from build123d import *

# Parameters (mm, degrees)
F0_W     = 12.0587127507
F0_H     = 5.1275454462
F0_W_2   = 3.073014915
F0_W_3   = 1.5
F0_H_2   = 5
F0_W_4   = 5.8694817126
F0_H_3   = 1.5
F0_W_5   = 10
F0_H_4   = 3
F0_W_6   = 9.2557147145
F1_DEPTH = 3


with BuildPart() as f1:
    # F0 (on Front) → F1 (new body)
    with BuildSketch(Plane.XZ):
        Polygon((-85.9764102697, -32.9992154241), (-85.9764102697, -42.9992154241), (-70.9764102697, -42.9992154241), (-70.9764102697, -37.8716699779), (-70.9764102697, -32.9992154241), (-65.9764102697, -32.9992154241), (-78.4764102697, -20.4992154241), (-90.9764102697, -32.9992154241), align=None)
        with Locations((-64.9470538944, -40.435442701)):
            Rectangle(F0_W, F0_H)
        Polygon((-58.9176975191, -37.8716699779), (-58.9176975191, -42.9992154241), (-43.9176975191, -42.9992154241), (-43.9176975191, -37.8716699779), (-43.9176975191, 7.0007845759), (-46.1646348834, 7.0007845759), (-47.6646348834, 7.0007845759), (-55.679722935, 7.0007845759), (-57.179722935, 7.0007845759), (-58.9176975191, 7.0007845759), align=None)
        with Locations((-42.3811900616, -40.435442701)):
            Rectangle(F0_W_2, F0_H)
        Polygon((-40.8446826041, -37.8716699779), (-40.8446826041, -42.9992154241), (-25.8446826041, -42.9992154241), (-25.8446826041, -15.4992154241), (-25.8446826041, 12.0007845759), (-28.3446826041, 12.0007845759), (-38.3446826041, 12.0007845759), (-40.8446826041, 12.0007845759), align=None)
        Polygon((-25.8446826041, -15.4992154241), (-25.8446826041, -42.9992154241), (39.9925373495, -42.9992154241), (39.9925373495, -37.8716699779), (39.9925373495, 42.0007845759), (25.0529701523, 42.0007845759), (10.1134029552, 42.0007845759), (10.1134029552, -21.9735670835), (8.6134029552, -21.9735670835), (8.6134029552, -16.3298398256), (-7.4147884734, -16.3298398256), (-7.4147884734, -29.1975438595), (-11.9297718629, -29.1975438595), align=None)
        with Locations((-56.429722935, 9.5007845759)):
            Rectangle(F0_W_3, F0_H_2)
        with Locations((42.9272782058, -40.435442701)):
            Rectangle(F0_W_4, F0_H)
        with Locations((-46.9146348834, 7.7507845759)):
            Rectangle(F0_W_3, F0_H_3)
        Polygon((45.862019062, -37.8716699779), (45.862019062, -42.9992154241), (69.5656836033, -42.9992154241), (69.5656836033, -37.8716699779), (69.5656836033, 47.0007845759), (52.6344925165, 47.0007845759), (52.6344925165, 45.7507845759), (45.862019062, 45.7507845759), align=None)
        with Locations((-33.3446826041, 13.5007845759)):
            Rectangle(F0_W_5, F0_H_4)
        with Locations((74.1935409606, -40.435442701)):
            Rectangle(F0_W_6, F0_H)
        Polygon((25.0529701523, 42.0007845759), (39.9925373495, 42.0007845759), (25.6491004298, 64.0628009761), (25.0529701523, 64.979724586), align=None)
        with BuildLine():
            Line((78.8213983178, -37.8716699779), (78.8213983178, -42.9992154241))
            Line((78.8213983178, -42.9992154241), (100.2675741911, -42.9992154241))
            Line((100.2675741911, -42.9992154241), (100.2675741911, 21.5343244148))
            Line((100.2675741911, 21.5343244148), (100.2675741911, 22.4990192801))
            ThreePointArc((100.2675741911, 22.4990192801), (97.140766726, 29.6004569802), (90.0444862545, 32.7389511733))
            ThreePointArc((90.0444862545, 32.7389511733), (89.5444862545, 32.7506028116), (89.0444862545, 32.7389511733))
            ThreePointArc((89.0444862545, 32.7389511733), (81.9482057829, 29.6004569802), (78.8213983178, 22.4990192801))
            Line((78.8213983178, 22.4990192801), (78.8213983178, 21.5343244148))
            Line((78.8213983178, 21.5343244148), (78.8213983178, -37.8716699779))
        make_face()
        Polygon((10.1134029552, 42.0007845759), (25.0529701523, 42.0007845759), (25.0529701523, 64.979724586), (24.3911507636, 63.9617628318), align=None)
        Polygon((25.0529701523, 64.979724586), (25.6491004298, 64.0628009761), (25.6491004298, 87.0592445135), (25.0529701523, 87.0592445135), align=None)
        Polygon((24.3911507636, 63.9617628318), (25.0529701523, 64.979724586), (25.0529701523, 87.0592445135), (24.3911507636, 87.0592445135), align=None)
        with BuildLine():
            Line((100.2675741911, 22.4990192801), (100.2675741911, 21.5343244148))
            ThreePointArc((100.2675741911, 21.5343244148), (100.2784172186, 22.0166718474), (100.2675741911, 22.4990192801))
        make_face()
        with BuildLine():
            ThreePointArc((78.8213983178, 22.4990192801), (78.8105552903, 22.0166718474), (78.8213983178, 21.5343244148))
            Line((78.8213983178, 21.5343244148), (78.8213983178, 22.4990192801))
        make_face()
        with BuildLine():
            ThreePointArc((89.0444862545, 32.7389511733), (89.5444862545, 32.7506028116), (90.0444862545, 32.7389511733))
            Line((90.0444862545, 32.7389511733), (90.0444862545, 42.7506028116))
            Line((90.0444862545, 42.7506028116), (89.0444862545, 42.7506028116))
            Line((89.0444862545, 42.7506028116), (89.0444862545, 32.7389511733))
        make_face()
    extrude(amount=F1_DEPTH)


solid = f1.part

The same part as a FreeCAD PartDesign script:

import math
import FreeCAD as App
import Part
import Sketcher

V = App.Vector
Q = App.Units.Quantity

doc = App.newDocument("Part")
params = doc.addObject("Spreadsheet::Sheet", "Params")
for row, (alias, value) in enumerate([
    ("sketch1_width", "1 mm"),
    ("sketch1_width2", "10 mm"),
    ("sketch1_width3", "5 mm"),
    ("sketch1_height", "3 mm"),
    ("sketch1_width4", "1.5 mm"),
    ("pad1_length", "3 mm"),
], start=1):
    params.set(f"A{row}", alias)
    params.set(f"B{row}", "=" + value)
    params.setAlias(f"B{row}", alias)

body = doc.addObject("PartDesign::Body", "Body")

# Sketch on XZ plane
sketch1 = body.newObject("Sketcher::SketchObject", "Sketch")
sketch1.AttachmentSupport = (doc.getObject("XZ_Plane"), [""])
sketch1.MapMode = "FlatFace"
sketch1.addGeometry(Part.LineSegment(V(-85.97641, -32.999215, 0), V(-85.97641, -42.999215, 0)), False)
sketch1.addGeometry(Part.LineSegment(V(-85.97641, -42.999215, 0), V(100.267574, -42.999215, 0)), False)
sketch1.addGeometry(Part.LineSegment(V(100.267574, -42.999215, 0), V(100.267574, 21.534324, 0)), False)
sketch1.addGeometry(Part.ArcOfCircle(Part.Circle(V(89.544486, 22.016672, 0), V(0, 0, 1), 10.733931), math.radians(-2.575551), math.radians(2.575551)), False)
sketch1.addGeometry(Part.ArcOfCircle(Part.Circle(V(89.544486, 22.016672, 0), V(0, 0, 1), 10.733931), math.radians(2.575551), math.radians(87.330124)), False)
sketch1.addGeometry(Part.LineSegment(V(90.044486, 32.738951, 0), V(90.044486, 42.750603, 0)), False)
sketch1.addGeometry(Part.LineSegment(V(90.044486, 42.750603, 0), V(89.044486, 42.750603, 0)), False)
sketch1.addGeometry(Part.LineSegment(V(89.044486, 42.750603, 0), V(89.044486, 32.738951, 0)), False)
sketch1.addGeometry(Part.ArcOfCircle(Part.Circle(V(89.544486, 22.016672, 0), V(0, 0, 1), 10.733931), math.radians(92.669876), math.radians(177.424449)), False)
sketch1.addGeometry(Part.ArcOfCircle(Part.Circle(V(89.544486, 22.016672, 0), V(0, 0, 1), 10.733931), math.radians(177.424449), math.radians(182.575551)), False)
sketch1.addGeometry(Part.LineSegment(V(78.821398, 21.534324, 0), V(78.821398, -37.87167, 0)), False)
sketch1.addGeometry(Part.LineSegment(V(78.821398, -37.87167, 0), V(69.565684, -37.87167, 0)), False)
sketch1.addGeometry(Part.LineSegment(V(69.565684, -37.87167, 0), V(69.565684, 47.000785, 0)), False)
sketch1.addGeometry(Part.LineSegment(V(69.565684, 47.000785, 0), V(52.634493, 47.000785, 0)), False)
sketch1.addGeometry(Part.LineSegment(V(52.634493, 47.000785, 0), V(52.634493, 45.750785, 0)), False)
sketch1.addGeometry(Part.LineSegment(V(52.634493, 45.750785, 0), V(45.862019, 45.750785, 0)), False)
sketch1.addGeometry(Part.LineSegment(V(45.862019, 45.750785, 0), V(45.862019, -37.87167, 0)), False)
sketch1.addGeometry(Part.LineSegment(V(45.862019, -37.87167, 0), V(39.992537, -37.87167, 0)), False)
sketch1.addGeometry(Part.LineSegment(V(39.992537, -37.87167, 0), V(39.992537, 42.000785, 0)), False)
sketch1.addGeometry(Part.LineSegment(V(39.992537, 42.000785, 0), V(25.6491, 64.062801, 0)), False)
sketch1.addGeometry(Part.LineSegment(V(25.6491, 64.062801, 0), V(25.6491, 87.059245, 0)), False)
sketch1.addGeometry(Part.LineSegment(V(25.6491, 87.059245, 0), V(24.391151, 87.059245, 0)), False)
sketch1.addGeometry(Part.LineSegment(V(24.391151, 87.059245, 0), V(24.391151, 63.961763, 0)), False)
sketch1.addGeometry(Part.LineSegment(V(24.391151, 63.961763, 0), V(10.113403, 42.000785, 0)), False)
sketch1.addGeometry(Part.LineSegment(V(10.113403, 42.000785, 0), V(10.113403, -21.973567, 0)), False)
sketch1.addGeometry(Part.LineSegment(V(10.113403, -21.973567, 0), V(8.613403, -21.973567, 0)), False)
sketch1.addGeometry(Part.LineSegment(V(8.613403, -21.973567, 0), V(8.613403, -16.32984, 0)), False)
sketch1.addGeometry(Part.LineSegment(V(8.613403, -16.32984, 0), V(-7.414788, -16.32984, 0)), False)
sketch1.addGeometry(Part.LineSegment(V(-7.414788, -16.32984, 0), V(-7.414788, -29.197544, 0)), False)
sketch1.addGeometry(Part.LineSegment(V(-7.414788, -29.197544, 0), V(-11.929772, -29.197544, 0)), False)
sketch1.addGeometry(Part.LineSegment(V(-11.929772, -29.197544, 0), V(-25.844683, -15.499215, 0)), False)
sketch1.addGeometry(Part.LineSegment(V(-25.844683, -15.499215, 0), V(-25.844683, 12.000785, 0)), False)
sketch1.addGeometry(Part.LineSegment(V(-25.844683, 12.000785, 0), V(-28.344683, 12.000785, 0)), False)
sketch1.addGeometry(Part.LineSegment(V(-28.344683, 12.000785, 0), V(-28.344683, 15.000785, 0)), False)
sketch1.addGeometry(Part.LineSegment(V(-28.344683, 15.000785, 0), V(-38.344683, 15.000785, 0)), False)
sketch1.addGeometry(Part.LineSegment(V(-38.344683, 15.000785, 0), V(-38.344683, 12.000785, 0)), False)
sketch1.addGeometry(Part.LineSegment(V(-38.344683, 12.000785, 0), V(-40.844683, 12.000785, 0)), False)
sketch1.addGeometry(Part.LineSegment(V(-40.844683, 12.000785, 0), V(-40.844683, -37.87167, 0)), False)
sketch1.addGeometry(Part.LineSegment(V(-40.844683, -37.87167, 0), V(-43.917698, -37.87167, 0)), False)
sketch1.addGeometry(Part.LineSegment(V(-43.917698, -37.87167, 0), V(-43.917698, 7.000785, 0)), False)
sketch1.addGeometry(Part.LineSegment(V(-43.917698, 7.000785, 0), V(-46.164635, 7.000785, 0)), False)
sketch1.addGeometry(Part.LineSegment(V(-46.164635, 7.000785, 0), V(-46.164635, 8.500785, 0)), False)
sketch1.addGeometry(Part.LineSegment(V(-46.164635, 8.500785, 0), V(-47.664635, 8.500785, 0)), False)
sketch1.addGeometry(Part.LineSegment(V(-47.664635, 8.500785, 0), V(-47.664635, 7.000785, 0)), False)
sketch1.addGeometry(Part.LineSegment(V(-47.664635, 7.000785, 0), V(-55.679723, 7.000785, 0)), False)
sketch1.addGeometry(Part.LineSegment(V(-55.679723, 7.000785, 0), V(-55.679723, 12.000785, 0)), False)
sketch1.addGeometry(Part.LineSegment(V(-55.679723, 12.000785, 0), V(-57.179723, 12.000785, 0)), False)
sketch1.addGeometry(Part.LineSegment(V(-57.179723, 12.000785, 0), V(-57.179723, 7.000785, 0)), False)
sketch1.addGeometry(Part.LineSegment(V(-57.179723, 7.000785, 0), V(-58.917698, 7.000785, 0)), False)
sketch1.addGeometry(Part.LineSegment(V(-58.917698, 7.000785, 0), V(-58.917698, -37.87167, 0)), False)
sketch1.addGeometry(Part.LineSegment(V(-58.917698, -37.87167, 0), V(-70.97641, -37.87167, 0)), False)
sketch1.addGeometry(Part.LineSegment(V(-70.97641, -37.87167, 0), V(-70.97641, -32.999215, 0)), False)
sketch1.addGeometry(Part.LineSegment(V(-70.97641, -32.999215, 0), V(-65.97641, -32.999215, 0)), False)
sketch1.addGeometry(Part.LineSegment(V(-65.97641, -32.999215, 0), V(-78.47641, -20.499215, 0)), False)
sketch1.addGeometry(Part.LineSegment(V(-78.47641, -20.499215, 0), V(-90.97641, -32.999215, 0)), False)
sketch1.addGeometry(Part.LineSegment(V(-90.97641, -32.999215, 0), V(-85.97641, -32.999215, 0)), False)
sketch1.addConstraint(Sketcher.Constraint("Coincident", 0, 2, 1, 1))
sketch1.addConstraint(Sketcher.Constraint("Coincident", 1, 2, 2, 1))
sketch1.addConstraint(Sketcher.Constraint("Coincident", 2, 2, 3, 1))
sketch1.addConstraint(Sketcher.Constraint("Tangent", 3, 2, 4, 1))
sketch1.addConstraint(Sketcher.Constraint("Coincident", 4, 2, 5, 1))
sketch1.addConstraint(Sketcher.Constraint("Coincident", 5, 2, 6, 1))
sketch1.addConstraint(Sketcher.Constraint("Coincident", 6, 2, 7, 1))
sketch1.addConstraint(Sketcher.Constraint("Coincident", 7, 2, 8, 1))
sketch1.addConstraint(Sketcher.Constraint("Tangent", 8, 2, 9, 1))
sketch1.addConstraint(Sketcher.Constraint("Coincident", 9, 2, 10, 1))
sketch1.addConstraint(Sketcher.Constraint("Coincident", 10, 2, 11, 1))
sketch1.addConstraint(Sketcher.Constraint("Coincident", 11, 2, 12, 1))
sketch1.addConstraint(Sketcher.Constraint("Coincident", 12, 2, 13, 1))
sketch1.addConstraint(Sketcher.Constraint("Coincident", 13, 2, 14, 1))
sketch1.addConstraint(Sketcher.Constraint("Coincident", 14, 2, 15, 1))
sketch1.addConstraint(Sketcher.Constraint("Coincident", 15, 2, 16, 1))
sketch1.addConstraint(Sketcher.Constraint("Coincident", 16, 2, 17, 1))
sketch1.addConstraint(Sketcher.Constraint("Coincident", 17, 2, 18, 1))
sketch1.addConstraint(Sketcher.Constraint("Coincident", 18, 2, 19, 1))
sketch1.addConstraint(Sketcher.Constraint("Coincident", 19, 2, 20, 1))
sketch1.addConstraint(Sketcher.Constraint("Coincident", 20, 2, 21, 1))
sketch1.addConstraint(Sketcher.Constraint("Coincident", 21, 2, 22, 1))
sketch1.addConstraint(Sketcher.Constraint("Coincident", 22, 2, 23, 1))
sketch1.addConstraint(Sketcher.Constraint("Coincident", 23, 2, 24, 1))
sketch1.addConstraint(Sketcher.Constraint("Coincident", 24, 2, 25, 1))
sketch1.addConstraint(Sketcher.Constraint("Coincident", 25, 2, 26, 1))
sketch1.addConstraint(Sketcher.Constraint("Coincident", 26, 2, 27, 1))
sketch1.addConstraint(Sketcher.Constraint("Coincident", 27, 2, 28, 1))
sketch1.addConstraint(Sketcher.Constraint("Coincident", 28, 2, 29, 1))
sketch1.addConstraint(Sketcher.Constraint("Coincident", 29, 2, 30, 1))
sketch1.addConstraint(Sketcher.Constraint("Coincident", 30, 2, 31, 1))
sketch1.addConstraint(Sketcher.Constraint("Coincident", 31, 2, 32, 1))
sketch1.addConstraint(Sketcher.Constraint("Coincident", 32, 2, 33, 1))
sketch1.addConstraint(Sketcher.Constraint("Coincident", 33, 2, 34, 1))
sketch1.addConstraint(Sketcher.Constraint("Coincident", 34, 2, 35, 1))
sketch1.addConstraint(Sketcher.Constraint("Coincident", 35, 2, 36, 1))
sketch1.addConstraint(Sketcher.Constraint("Coincident", 36, 2, 37, 1))
sketch1.addConstraint(Sketcher.Constraint("Coincident", 37, 2, 38, 1))
sketch1.addConstraint(Sketcher.Constraint("Coincident", 38, 2, 39, 1))
sketch1.addConstraint(Sketcher.Constraint("Coincident", 39, 2, 40, 1))
sketch1.addConstraint(Sketcher.Constraint("Coincident", 40, 2, 41, 1))
sketch1.addConstraint(Sketcher.Constraint("Coincident", 41, 2, 42, 1))
sketch1.addConstraint(Sketcher.Constraint("Coincident", 42, 2, 43, 1))
sketch1.addConstraint(Sketcher.Constraint("Coincident", 43, 2, 44, 1))
sketch1.addConstraint(Sketcher.Constraint("Coincident", 44, 2, 45, 1))
sketch1.addConstraint(Sketcher.Constraint("Coincident", 45, 2, 46, 1))
sketch1.addConstraint(Sketcher.Constraint("Coincident", 46, 2, 47, 1))
sketch1.addConstraint(Sketcher.Constraint("Coincident", 47, 2, 48, 1))
sketch1.addConstraint(Sketcher.Constraint("Coincident", 48, 2, 49, 1))
sketch1.addConstraint(Sketcher.Constraint("Coincident", 49, 2, 50, 1))
sketch1.addConstraint(Sketcher.Constraint("Coincident", 50, 2, 51, 1))
sketch1.addConstraint(Sketcher.Constraint("Coincident", 51, 2, 52, 1))
sketch1.addConstraint(Sketcher.Constraint("Coincident", 52, 2, 53, 1))
sketch1.addConstraint(Sketcher.Constraint("Coincident", 53, 2, 54, 1))
sketch1.addConstraint(Sketcher.Constraint("Coincident", 54, 2, 55, 1))
sketch1.addConstraint(Sketcher.Constraint("Coincident", 55, 2, 0, 1))
sketch1.addConstraint(Sketcher.Constraint("Vertical", 0))
sketch1.addConstraint(Sketcher.Constraint("Horizontal", 1))
sketch1.addConstraint(Sketcher.Constraint("Vertical", 2))
sketch1.addConstraint(Sketcher.Constraint("Vertical", 5))
sketch1.addConstraint(Sketcher.Constraint("Horizontal", 6))
sketch1.addConstraint(Sketcher.Constraint("Vertical", 7))
sketch1.addConstraint(Sketcher.Constraint("Vertical", 10))
sketch1.addConstraint(Sketcher.Constraint("Horizontal", 11))
sketch1.addConstraint(Sketcher.Constraint("Vertical", 12))
sketch1.addConstraint(Sketcher.Constraint("Horizontal", 13))
sketch1.addConstraint(Sketcher.Constraint("Vertical", 14))
sketch1.addConstraint(Sketcher.Constraint("Horizontal", 15))
sketch1.addConstraint(Sketcher.Constraint("Vertical", 16))
sketch1.addConstraint(Sketcher.Constraint("Horizontal", 17))
sketch1.addConstraint(Sketcher.Constraint("Vertical", 18))
sketch1.addConstraint(Sketcher.Constraint("Vertical", 20))
sketch1.addConstraint(Sketcher.Constraint("Horizontal", 21))
sketch1.addConstraint(Sketcher.Constraint("Vertical", 22))
sketch1.addConstraint(Sketcher.Constraint("Vertical", 24))
sketch1.addConstraint(Sketcher.Constraint("Horizontal", 25))
sketch1.addConstraint(Sketcher.Constraint("Vertical", 26))
sketch1.addConstraint(Sketcher.Constraint("Horizontal", 27))
sketch1.addConstraint(Sketcher.Constraint("Vertical", 28))
sketch1.addConstraint(Sketcher.Constraint("Horizontal", 29))
sketch1.addConstraint(Sketcher.Constraint("Vertical", 31))
sketch1.addConstraint(Sketcher.Constraint("Horizontal", 32))
sketch1.addConstraint(Sketcher.Constraint("Vertical", 33))
sketch1.addConstraint(Sketcher.Constraint("Horizontal", 34))
sketch1.addConstraint(Sketcher.Constraint("Vertical", 35))
sketch1.addConstraint(Sketcher.Constraint("Horizontal", 36))
sketch1.addConstraint(Sketcher.Constraint("Vertical", 37))
sketch1.addConstraint(Sketcher.Constraint("Horizontal", 38))
sketch1.addConstraint(Sketcher.Constraint("Vertical", 39))
sketch1.addConstraint(Sketcher.Constraint("Horizontal", 40))
sketch1.addConstraint(Sketcher.Constraint("Vertical", 41))
sketch1.addConstraint(Sketcher.Constraint("Horizontal", 42))
sketch1.addConstraint(Sketcher.Constraint("Vertical", 43))
sketch1.addConstraint(Sketcher.Constraint("Horizontal", 44))
sketch1.addConstraint(Sketcher.Constraint("Vertical", 45))
sketch1.addConstraint(Sketcher.Constraint("Horizontal", 46))
sketch1.addConstraint(Sketcher.Constraint("Vertical", 47))
sketch1.addConstraint(Sketcher.Constraint("Horizontal", 48))
sketch1.addConstraint(Sketcher.Constraint("Vertical", 49))
sketch1.addConstraint(Sketcher.Constraint("Horizontal", 50))
sketch1.addConstraint(Sketcher.Constraint("Vertical", 51))
sketch1.addConstraint(Sketcher.Constraint("Horizontal", 52))
sketch1.addConstraint(Sketcher.Constraint("Horizontal", 55))
sketch1.addConstraint(Sketcher.Constraint("Coincident", 8, 3, 3, 3))
sketch1.addConstraint(Sketcher.Constraint("Equal", 3, 4))
sketch1.addConstraint(Sketcher.Constraint("Equal", 4, 8))
sketch1.addConstraint(Sketcher.Constraint("Equal", 8, 9))
sketch1.addConstraint(Sketcher.Constraint("Perpendicular", 53, 54))
sketch1.addConstraint(Sketcher.Constraint("Horizontal", 4, 2, 7, 2))
sketch1.addConstraint(Sketcher.Constraint("Horizontal", 3, 2, 8, 2))
sketch1.addConstraint(Sketcher.Constraint("Horizontal", 2, 2, 9, 2))
sketch1.addConstraint(Sketcher.Constraint("Horizontal", 11, 2, 16, 2))
sketch1.addConstraint(Sketcher.Constraint("Horizontal", 18, 2, 23, 2))
sketch1.addConstraint(Sketcher.Constraint("Horizontal", 32, 2, 35, 2))
sketch1.addConstraint(Sketcher.Constraint("Horizontal", 17, 2, 37, 2))
sketch1.addConstraint(Sketcher.Constraint("Horizontal", 40, 2, 43, 2))
sketch1.addConstraint(Sketcher.Constraint("Horizontal", 36, 2, 45, 2))
sketch1.addConstraint(Sketcher.Constraint("Horizontal", 44, 2, 47, 2))
sketch1.addConstraint(Sketcher.Constraint("Horizontal", 38, 2, 49, 2))
sketch1.addConstraint(Sketcher.Constraint("Horizontal", 52, 2, 54, 2))
sketch1.addConstraint(Sketcher.Constraint("Vertical", 2, 2, 3, 2))
sketch1.addConstraint(Sketcher.Constraint("Equal", 32, 36))
sketch1.addConstraint(Sketcher.Constraint("Equal", 25, 42))
sketch1.addConstraint(Sketcher.Constraint("Equal", 42, 46))
sketch1.addConstraint(Sketcher.Constraint("Equal", 52, 55))
sketch1.addConstraint(Sketcher.Constraint("Equal", 34, 0))
sketch1.addConstraint(Sketcher.Constraint("Equal", 46, 41))
sketch1.addConstraint(Sketcher.Constraint("Equal", 55, 45))
sketch1.addConstraint(Sketcher.Constraint("Equal", 53, 54))
sketch1.addConstraint(Sketcher.Constraint("DistanceX", 6, 2, 6, 1, Q("1 mm")))
sketch1.addConstraint(Sketcher.Constraint("DistanceX", 34, 2, 34, 1, Q("10 mm")))
sketch1.addConstraint(Sketcher.Constraint("DistanceX", 52, 1, 52, 2, Q("5 mm")))
sketch1.addConstraint(Sketcher.Constraint("DistanceY", 33, 1, 33, 2, Q("3 mm")))
sketch1.addConstraint(Sketcher.Constraint("DistanceX", 25, 2, 25, 1, Q("1.5 mm")))
sketch1.addConstraint(Sketcher.Constraint("DistanceX", 32, 2, 32, 1, Q("2.5 mm")))
sketch1.addConstraint(Sketcher.Constraint("DistanceY", 31, 1, 31, 2, Q("27.5 mm")))
sketch1.addConstraint(Sketcher.Constraint("DistanceY", 18, 2, 13, 2, Q("5 mm")))
sketch1.addConstraint(Sketcher.Constraint("DistanceY", 33, 2, 23, 2, Q("27 mm")))
sketch1.addConstraint(Sketcher.Constraint("DistanceX", 49, 2, 38, 2, Q("15 mm")))
sketch1.addConstraint(Sketcher.Constraint("DistanceX", 0, 2, 50, 2, Q("15 mm")))
sketch1.addConstraint(Sketcher.Constraint("DistanceY", 14, 2, 14, 1, Q("1.25 mm")))
sketch1.addConstraint(Sketcher.Constraint("Radius", 3, Q("10.733931 mm")))
sketch1.addConstraint(Sketcher.Constraint("DistanceX", 13, 2, 13, 1, Q("16.931191 mm")))
sketch1.addConstraint(Sketcher.Constraint("DistanceX", 17, 2, 17, 1, Q("5.869482 mm")))
sketch1.addConstraint(Sketcher.Constraint("DistanceX", 21, 2, 21, 1, Q("1.25795 mm")))
sketch1.addConstraint(Sketcher.Constraint("DistanceX", 27, 2, 27, 1, Q("16.028191 mm")))
sketch1.addConstraint(Sketcher.Constraint("DistanceX", 44, 2, 44, 1, Q("8.015088 mm")))
sketch1.addConstraint(Sketcher.Constraint("DistanceY", 2, 1, 2, 2, Q("64.53354 mm")))
sketch1.addConstraint(Sketcher.Constraint("DistanceY", 5, 1, 5, 2, Q("10.011652 mm")))
sketch1.addConstraint(Sketcher.Constraint("DistanceY", 22, 2, 22, 1, Q("23.097482 mm")))
sketch1.addConstraint(Sketcher.Constraint("DistanceY", 24, 2, 24, 1, Q("63.974352 mm")))
sketch1.addConstraint(Sketcher.Constraint("DistanceX", -1, 1, 8, 2, Q("78.821398 mm")))
sketch1.addConstraint(Sketcher.Constraint("DistanceX", -1, 1, 19, 2, Q("25.6491 mm")))
sketch1.addConstraint(Sketcher.Constraint("DistanceY", -1, 1, 19, 2, Q("64.062801 mm")))
sketch1.addConstraint(Sketcher.Constraint("Distance", 23, Q("26.194248 mm")))
sketch1.addConstraint(Sketcher.Constraint("Distance", 30, Q("19.526109 mm")))
sketch1.addConstraint(Sketcher.Constraint("DistanceX", 1, 1, 1, 2, Q("186.243984 mm")))
sketch1.addConstraint(Sketcher.Constraint("DistanceX", 11, 2, 11, 1, Q("9.255715 mm")))
sketch1.addConstraint(Sketcher.Constraint("DistanceX", 15, 2, 15, 1, Q("6.772473 mm")))
sketch1.addConstraint(Sketcher.Constraint("DistanceX", 29, 2, 29, 1, Q("4.514983 mm")))
sketch1.addConstraint(Sketcher.Constraint("DistanceX", 38, 2, 38, 1, Q("3.073015 mm")))
sketch1.addConstraint(Sketcher.Constraint("DistanceX", 40, 2, 40, 1, Q("2.246937 mm")))
sketch1.addConstraint(Sketcher.Constraint("DistanceX", 50, 2, 50, 1, Q("12.058713 mm")))
sketch1.addConstraint(Sketcher.Constraint("DistanceY", 10, 2, 10, 1, Q("59.405994 mm")))
sketch1.addConstraint(Sketcher.Constraint("DistanceY", 12, 1, 12, 2, Q("84.872455 mm")))
sketch1.addConstraint(Sketcher.Constraint("DistanceY", 20, 1, 20, 2, Q("22.996444 mm")))
sketch1.addConstraint(Sketcher.Constraint("DistanceY", 26, 1, 26, 2, Q("5.643727 mm")))
sketch1.addConstraint(Sketcher.Constraint("DistanceY", 28, 2, 28, 1, Q("12.867704 mm")))
sketch1.addConstraint(Sketcher.Constraint("DistanceY", -1, 1, 3, 3, Q("22.016672 mm")))
sketch1.setExpression("Constraints[129]", "Params.sketch1_width")
sketch1.setExpression("Constraints[130]", "Params.sketch1_width2")
sketch1.setExpression("Constraints[131]", "Params.sketch1_width3")
sketch1.setExpression("Constraints[132]", "Params.sketch1_height")
sketch1.setExpression("Constraints[133]", "Params.sketch1_width4")
pad1 = body.newObject("PartDesign::Pad", "Pad")
pad1.Profile = sketch1
pad1.setExpression("Length", "Params.pad1_length")

doc.recompute()
